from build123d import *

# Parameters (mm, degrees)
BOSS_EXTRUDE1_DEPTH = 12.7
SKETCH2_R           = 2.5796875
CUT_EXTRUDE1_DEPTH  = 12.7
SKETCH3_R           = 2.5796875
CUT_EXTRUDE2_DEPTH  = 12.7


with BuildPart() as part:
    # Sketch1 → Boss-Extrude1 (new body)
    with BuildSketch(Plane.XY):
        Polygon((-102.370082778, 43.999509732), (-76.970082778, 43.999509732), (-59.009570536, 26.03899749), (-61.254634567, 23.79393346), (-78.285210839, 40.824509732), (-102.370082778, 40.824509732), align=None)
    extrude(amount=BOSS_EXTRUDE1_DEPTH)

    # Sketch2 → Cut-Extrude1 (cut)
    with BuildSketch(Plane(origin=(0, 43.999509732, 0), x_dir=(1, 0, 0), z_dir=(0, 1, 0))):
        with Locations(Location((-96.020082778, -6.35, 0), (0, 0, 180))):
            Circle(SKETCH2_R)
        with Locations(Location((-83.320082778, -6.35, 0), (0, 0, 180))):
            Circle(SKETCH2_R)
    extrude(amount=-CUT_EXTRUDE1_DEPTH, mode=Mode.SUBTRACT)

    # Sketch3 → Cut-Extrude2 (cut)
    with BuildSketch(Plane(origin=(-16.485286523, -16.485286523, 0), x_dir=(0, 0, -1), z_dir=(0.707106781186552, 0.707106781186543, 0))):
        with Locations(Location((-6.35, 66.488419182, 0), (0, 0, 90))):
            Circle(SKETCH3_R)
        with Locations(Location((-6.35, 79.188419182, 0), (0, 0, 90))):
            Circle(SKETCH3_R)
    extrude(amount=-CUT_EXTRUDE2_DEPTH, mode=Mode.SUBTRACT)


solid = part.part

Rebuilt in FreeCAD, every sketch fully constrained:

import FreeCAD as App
import Part
import Sketcher
from FreeCAD import Vector
Q = App.Units.Quantity


def add_polygon(sketch, points):
    """Adds a closed chain of lines whose ends are joined by coincident constraints."""
    first, n = sketch.GeometryCount, len(points)
    for a, b in zip(points, points[1:] + points[:1]):
        sketch.addGeometry(Part.LineSegment(App.Vector(*a, 0), App.Vector(*b, 0)), False)
    for i in range(n):
        sketch.addConstraint(Sketcher.Constraint("Coincident", first + i, 2, first + (i + 1) % n, 1))

doc = App.newDocument("Part")
body = doc.addObject("PartDesign::Body", "Body")

sketch1 = body.newObject("Sketcher::SketchObject", "Sketch")
sketch1.AttachmentSupport = (doc.getObject("XY_Plane"), [""])
sketch1.MapMode = "FlatFace"
add_polygon(sketch1, [(-77, 44), (-102.4, 44), (-102.4, 40.8), (-78.3, 40.8), (-61.3, 23.8), (-59, 26)])
sketch1.addConstraint([
    Sketcher.Constraint("Horizontal", 0),
    Sketcher.Constraint("Vertical", 1),
    Sketcher.Constraint("Horizontal", 2),
    Sketcher.Constraint("Perpendicular", 3, 4),
    Sketcher.Constraint("Perpendicular", 4, 5),
    Sketcher.Constraint("DistanceX", 0, 2, 0, 1, Q("1 in")),
    Sketcher.Constraint("Distance", 5, Q("1 in")),
    Sketcher.Constraint("Angle", 3, Q("-45 deg")),
    Sketcher.Constraint("DistanceY", 1, 2, 1, 1, Q("0.125 in")),
    Sketcher.Constraint("Distance", 4, Q("0.125 in")),
    Sketcher.Constraint("DistanceY", -1, 1, 0, 2, Q("43.99951 mm")),
    Sketcher.Constraint("DistanceX", 2, 2, -1, 1, Q("78.285211 mm")),
])
pad1 = body.newObject("PartDesign::Pad", "Pad")
pad1.Profile = sketch1
pad1.Length = Q("0.5 in")

sketch2 = body.newObject("Sketcher::SketchObject", "Sketch001")
sketch2.AttachmentSupport = (doc.getObject("XZ_Plane"), [""])
sketch2.MapMode = "FlatFace"
sketch2.AttachmentOffset = App.Placement(Vector(0, 0, -43.99951), App.Rotation())
sketch2.addGeometry([
    Part.Circle(Vector(-96, 6.3, 0), Vector(0, 0, 1), 2.6),
    Part.Circle(Vector(-83.3, 6.3, 0), Vector(0, 0, 1), 2.6),
], False)
sketch2.addConstraint([
    Sketcher.Constraint("Equal", 0, 1),
    Sketcher.Constraint("Horizontal", 0, 3, 1, 3),
    Sketcher.Constraint("Diameter", 0, Q("0.203125 in")),
    Sketcher.Constraint("DistanceX", 0, 3, 1, 3, Q("0.5 in")),
    Sketcher.Constraint("DistanceY", -1, 1, 0, 3, Q("0.25 in")),
    Sketcher.Constraint("DistanceX", 0, 3, -1, 1, Q("96.020083 mm")),
])
pocket1 = body.newObject("PartDesign::Pocket", "Pocket")
pocket1.Profile = sketch2
pocket1.Length = Q("0.5 in")
pocket1.Reversed = True

sketch3 = body.newObject("Sketcher::SketchObject", "Sketch002")
sketch3.Placement = App.Placement(Vector(-16.485287, -16.485287, 0), App.Rotation(Vector(0, 0, -1), Vector(-0.707106781, 0.707106781, 0), Vector(0.707106781, 0.707106781, 0), "ZXY"))
sketch3.addGeometry([
    Part.Circle(Vector(-6.3, 66.5, 0), Vector(0, 0, 1), 2.6),
    Part.Circle(Vector(-6.3, 79.2, 0), Vector(0, 0, 1), 2.6),
], False)
sketch3.addConstraint([
    Sketcher.Constraint("Equal", 0, 1),
    Sketcher.Constraint("Vertical", 0, 3, 1, 3),
    Sketcher.Constraint("Diameter", 0, Q("0.203125 in")),
    Sketcher.Constraint("DistanceY", 0, 3, 1, 3, Q("0.5 in")),
    Sketcher.Constraint("DistanceX", 0, 3, -1, 1, Q("0.25 in")),
    Sketcher.Constraint("DistanceY", -1, 1, 0, 3, Q("66.488419 mm")),
])
pocket2 = body.newObject("PartDesign::Pocket", "Pocket001")
pocket2.Profile = sketch3
pocket2.Length = Q("0.5 in")

doc.recompute()
